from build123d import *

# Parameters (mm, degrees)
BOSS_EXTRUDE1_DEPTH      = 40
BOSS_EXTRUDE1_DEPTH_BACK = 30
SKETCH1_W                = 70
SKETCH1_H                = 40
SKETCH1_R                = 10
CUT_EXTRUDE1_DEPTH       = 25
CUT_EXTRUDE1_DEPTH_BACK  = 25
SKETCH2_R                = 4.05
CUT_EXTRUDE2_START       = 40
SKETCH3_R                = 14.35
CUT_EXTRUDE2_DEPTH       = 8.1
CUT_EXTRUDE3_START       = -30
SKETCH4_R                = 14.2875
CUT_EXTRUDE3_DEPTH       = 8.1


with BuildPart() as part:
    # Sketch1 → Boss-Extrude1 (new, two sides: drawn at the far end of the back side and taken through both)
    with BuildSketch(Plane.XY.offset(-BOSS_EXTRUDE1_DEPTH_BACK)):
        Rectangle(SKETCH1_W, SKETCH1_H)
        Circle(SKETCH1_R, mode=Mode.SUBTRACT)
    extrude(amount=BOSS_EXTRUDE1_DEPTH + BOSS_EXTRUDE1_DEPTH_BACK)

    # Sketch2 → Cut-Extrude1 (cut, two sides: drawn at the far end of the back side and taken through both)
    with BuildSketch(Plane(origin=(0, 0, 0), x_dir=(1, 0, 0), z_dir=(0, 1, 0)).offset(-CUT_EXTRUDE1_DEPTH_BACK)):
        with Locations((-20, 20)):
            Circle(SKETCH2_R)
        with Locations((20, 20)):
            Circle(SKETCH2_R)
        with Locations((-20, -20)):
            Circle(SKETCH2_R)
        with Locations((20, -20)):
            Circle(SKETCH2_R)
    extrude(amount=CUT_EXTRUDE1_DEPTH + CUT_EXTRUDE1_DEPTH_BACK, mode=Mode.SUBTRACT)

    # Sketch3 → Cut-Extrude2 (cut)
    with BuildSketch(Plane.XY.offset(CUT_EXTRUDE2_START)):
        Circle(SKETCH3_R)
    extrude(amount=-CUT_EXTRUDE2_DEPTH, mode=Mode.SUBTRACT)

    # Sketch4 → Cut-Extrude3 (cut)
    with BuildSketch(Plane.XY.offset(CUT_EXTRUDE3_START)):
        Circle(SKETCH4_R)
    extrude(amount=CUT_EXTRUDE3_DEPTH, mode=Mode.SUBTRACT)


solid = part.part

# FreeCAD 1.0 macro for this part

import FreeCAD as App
import Part
import Sketcher

doc = App.newDocument("Part")
body = doc.addObject("PartDesign::Body", "Body")

sketch1 = doc.addObject("Sketcher::SketchObject", "Sketch")
body.addObject(sketch1)
sketch1.AttachmentSupport = (doc.XY_Plane, [""])
sketch1.MapMode = "FlatFace"
sketch1.addGeometry([
    Part.LineSegment(App.Vector(-35, 20, 0), App.Vector(-35, -20, 0)),
    Part.LineSegment(App.Vector(-35, -20, 0), App.Vector(35, -20, 0)),
    Part.LineSegment(App.Vector(35, -20, 0), App.Vector(35, 20, 0)),
    Part.LineSegment(App.Vector(35, 20, 0), App.Vector(-35, 20, 0)),
    Part.Circle(App.Vector(0, 0, 0), App.Vector(0, 0, 1), 10),
], False)
sketch1.addConstraint([
    Sketcher.Constraint("Coincident", 0, 2, 1, 1),
    Sketcher.Constraint("Coincident", 1, 2, 2, 1),
    Sketcher.Constraint("Coincident", 2, 2, 3, 1),
    Sketcher.Constraint("Coincident", 3, 2, 0, 1),
    Sketcher.Constraint("Vertical", 0),
    Sketcher.Constraint("Horizontal", 1),
    Sketcher.Constraint("Vertical", 2),
    Sketcher.Constraint("Horizontal", 3),
    Sketcher.Constraint("Coincident", 4, 3, -1, 1),
    Sketcher.Constraint("Symmetric", 0, 2, 2, 2, -1, 1),
    Sketcher.Constraint("Diameter", 4, 20.0),
    Sketcher.Constraint("DistanceX", 1, 1, 1, 2, 70.0),
    Sketcher.Constraint("DistanceY", 0, 2, 0, 1, 40.0),
])
pad1 = doc.addObject("PartDesign::Pad", "Pad")
body.addObject(pad1)
pad1.Profile = sketch1
pad1.Type = "TwoLengths"
pad1.Length = 40
pad1.Length2 = 30

sketch2 = doc.addObject("Sketcher::SketchObject", "Sketch001")
body.addObject(sketch2)
sketch2.AttachmentSupport = (doc.XZ_Plane, [""])
sketch2.MapMode = "FlatFace"
sketch2.addGeometry([
    Part.Circle(App.Vector(-20, -20, 0), App.Vector(0, 0, 1), 4),
    Part.Circle(App.Vector(20, -20, 0), App.Vector(0, 0, 1), 4),
    Part.Circle(App.Vector(-20, 20, 0), App.Vector(0, 0, 1), 4),
    Part.Circle(App.Vector(20, 20, 0), App.Vector(0, 0, 1), 4),
], False)
sketch2.addConstraint([
    Sketcher.Constraint("Equal", 0, 1),
    Sketcher.Constraint("Equal", 1, 2),
    Sketcher.Constraint("Equal", 2, 3),
    Sketcher.Constraint("Symmetric", 1, 3, 2, 3, -1, 1),
    Sketcher.Constraint("Symmetric", 0, 3, 3, 3, -1, 1),
    Sketcher.Constraint("Symmetric", 0, 3, 1, 3, -2),
    Sketcher.Constraint("Diameter", 0, 8.1),
    Sketcher.Constraint("DistanceX", 0, 3, -1, 1, 20.0),
    Sketcher.Constraint("DistanceY", 0, 3, -1, 1, 20.0),
])
pocket1 = doc.addObject("PartDesign::Pocket", "Pocket")
body.addObject(pocket1)
pocket1.Profile = sketch2
pocket1.Type = "ThroughAll"
pocket1.Midplane = True

sketch3 = doc.addObject("Sketcher::SketchObject", "Sketch002")
body.addObject(sketch3)
sketch3.AttachmentSupport = (doc.XY_Plane, [""])
sketch3.MapMode = "FlatFace"
sketch3.AttachmentOffset = App.Placement(App.Vector(0, 0, 40), App.Rotation())
sketch3.addGeometry(Part.Circle(App.Vector(0, 0, 0), App.Vector(0, 0, 1), 14), False)
sketch3.addConstraint([
    Sketcher.Constraint("Coincident", 0, 3, -1, 1),
    Sketcher.Constraint("Diameter", 0, 28.7),
])
pocket2 = doc.addObject("PartDesign::Pocket", "Pocket001")
body.addObject(pocket2)
pocket2.Profile = sketch3
pocket2.Length = 8.1

sketch4 = doc.addObject("Sketcher::SketchObject", "Sketch003")
body.addObject(sketch4)
sketch4.AttachmentSupport = (doc.XY_Plane, [""])
sketch4.MapMode = "FlatFace"
sketch4.AttachmentOffset = App.Placement(App.Vector(0, 0, -30), App.Rotation())
sketch4.addGeometry(Part.Circle(App.Vector(0, 0, 0), App.Vector(0, 0, 1), 14), False)
sketch4.addConstraint([
    Sketcher.Constraint("Coincident", 0, 3, -1, 1),
    Sketcher.Constraint("Diameter", 0, 28.575),
])
pocket3 = doc.addObject("PartDesign::Pocket", "Pocket002")
body.addObject(pocket3)
pocket3.Profile = sketch4
pocket3.Length = 8.1
pocket3.Reversed = True

doc.recompute()
